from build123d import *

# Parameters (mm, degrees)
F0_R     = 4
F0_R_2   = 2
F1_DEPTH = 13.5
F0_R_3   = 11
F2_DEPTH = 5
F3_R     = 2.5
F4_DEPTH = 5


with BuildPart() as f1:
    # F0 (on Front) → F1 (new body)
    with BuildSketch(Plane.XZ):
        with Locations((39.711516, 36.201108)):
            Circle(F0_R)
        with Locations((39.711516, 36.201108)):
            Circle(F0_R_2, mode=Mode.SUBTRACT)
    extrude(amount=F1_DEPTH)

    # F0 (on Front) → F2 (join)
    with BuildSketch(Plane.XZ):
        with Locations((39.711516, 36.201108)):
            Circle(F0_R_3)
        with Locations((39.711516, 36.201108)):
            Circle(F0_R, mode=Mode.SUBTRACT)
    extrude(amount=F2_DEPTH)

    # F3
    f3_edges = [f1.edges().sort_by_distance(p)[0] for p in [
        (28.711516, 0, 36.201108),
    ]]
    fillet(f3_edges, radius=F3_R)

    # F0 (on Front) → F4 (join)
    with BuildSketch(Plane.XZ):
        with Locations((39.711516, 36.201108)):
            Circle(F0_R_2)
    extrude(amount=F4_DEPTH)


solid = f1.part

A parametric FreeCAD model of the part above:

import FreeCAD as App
import Part
import Sketcher
from FreeCAD import Vector
Q = App.Units.Quantity


def edges_at(feature, points):
    """Names of the edges that pass closest to the given points."""
    edges = feature.Shape.Edges
    near = lambda p: min(range(len(edges)), key=lambda i: edges[i].distToShape(Part.Vertex(*p))[0])
    return sorted({f"Edge{near(p) + 1}" for p in points})

doc = App.newDocument("Part")
body = doc.addObject("PartDesign::Body", "Body")

sketch1 = doc.addObject("Sketcher::SketchObject", "Sketch")
body.addObject(sketch1)
sketch1.AttachmentSupport = (doc.XZ_Plane, [""])
sketch1.MapMode = "FlatFace"
sketch1.addGeometry(Part.Circle(Vector(39.7, 36.2, 0), Vector(0, 0, 1), 4), False)
sketch1.addGeometry(Part.Circle(Vector(39.7, 36.2, 0), Vector(0, 0, 1), 2), False)
sketch1.addConstraint(Sketcher.Constraint("Coincident", 1, 3, 0, 3))
sketch1.addConstraint(Sketcher.Constraint("Diameter", 0, Q("8 mm")))
sketch1.addConstraint(Sketcher.Constraint("Diameter", 1, Q("4 mm")))
sketch1.addConstraint(Sketcher.Constraint("DistanceX", -1, 1, 0, 3, Q("39.711516 mm")))
sketch1.addConstraint(Sketcher.Constraint("DistanceY", -1, 1, 0, 3, Q("36.201108 mm")))
pad1 = doc.addObject("PartDesign::Pad", "Pad")
body.addObject(pad1)
pad1.Profile = sketch1
pad1.Length = 13.5

sketch2 = doc.addObject("Sketcher::SketchObject", "Sketch001")
body.addObject(sketch2)
sketch2.AttachmentSupport = (doc.XZ_Plane, [""])
sketch2.MapMode = "FlatFace"
sketch2.addGeometry(Part.Circle(Vector(39.7, 36.2, 0), Vector(0, 0, 1), 11), False)
sketch2.addGeometry(Part.Circle(Vector(39.7, 36.2, 0), Vector(0, 0, 1), 4), False)
sketch2.addConstraint(Sketcher.Constraint("Coincident", 1, 3, 0, 3))
sketch2.addConstraint(Sketcher.Constraint("Diameter", 0, Q("22 mm")))
sketch2.addConstraint(Sketcher.Constraint("Diameter", 1, Q("8 mm")))
sketch2.addConstraint(Sketcher.Constraint("DistanceX", -1, 1, 0, 3, Q("39.711516 mm")))
sketch2.addConstraint(Sketcher.Constraint("DistanceY", -1, 1, 0, 3, Q("36.201108 mm")))
pad2 = doc.addObject("PartDesign::Pad", "Pad001")
body.addObject(pad2)
pad2.Profile = sketch2
pad2.Length = 5
doc.recompute()

fillet = doc.addObject("PartDesign::Fillet", "Fillet")
body.addObject(fillet)
fillet.Base = (pad2, edges_at(pad2, [(28.712, 0, 36.201)]))
fillet.Radius = 2.5

sketch3 = doc.addObject("Sketcher::SketchObject", "Sketch002")
body.addObject(sketch3)
sketch3.AttachmentSupport = (doc.XZ_Plane, [""])
sketch3.MapMode = "FlatFace"
sketch3.addGeometry(Part.Circle(Vector(39.7, 36.2, 0), Vector(0, 0, 1), 2), False)
sketch3.addConstraint(Sketcher.Constraint("Diameter", 0, Q("4 mm")))
sketch3.addConstraint(Sketcher.Constraint("DistanceX", -1, 1, 0, 3, Q("39.711516 mm")))
sketch3.addConstraint(Sketcher.Constraint("DistanceY", -1, 1, 0, 3, Q("36.201108 mm")))
pad3 = doc.addObject("PartDesign::Pad", "Pad002")
body.addObject(pad3)
pad3.Profile = sketch3
pad3.Length = 5

doc.recompute()
